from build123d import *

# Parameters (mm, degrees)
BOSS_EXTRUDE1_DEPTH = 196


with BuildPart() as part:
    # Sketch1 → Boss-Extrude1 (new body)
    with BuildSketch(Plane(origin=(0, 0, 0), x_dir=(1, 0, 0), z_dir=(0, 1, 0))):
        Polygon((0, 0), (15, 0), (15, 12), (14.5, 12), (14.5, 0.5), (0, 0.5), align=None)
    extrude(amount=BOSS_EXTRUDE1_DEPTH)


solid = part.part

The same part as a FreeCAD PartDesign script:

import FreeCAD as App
import Part
import Sketcher


def add_polygon(sketch, points):
    """Adds a closed chain of lines whose ends are joined by coincident constraints."""
    first, n = sketch.GeometryCount, len(points)
    for a, b in zip(points, points[1:] + points[:1]):
        sketch.addGeometry(Part.LineSegment(App.Vector(*a, 0), App.Vector(*b, 0)), False)
    for i in range(n):
        sketch.addConstraint(Sketcher.Constraint("Coincident", first + i, 2, first + (i + 1) % n, 1))

doc = App.newDocument("Part")
body = doc.addObject("PartDesign::Body", "Body")

sketch1 = body.newObject("Sketcher::SketchObject", "Sketch")
sketch1.AttachmentSupport = (doc.getObject("XZ_Plane"), [""])
sketch1.MapMode = "FlatFace"
add_polygon(sketch1, [(0, 0), (15, 0), (15, -12), (14.5, -12), (14.5, -0.5), (0, -0.5)])
sketch1.addConstraint(Sketcher.Constraint("Horizontal", 0))
sketch1.addConstraint(Sketcher.Constraint("Vertical", 1))
sketch1.addConstraint(Sketcher.Constraint("Horizontal", 2))
sketch1.addConstraint(Sketcher.Constraint("Vertical", 3))
sketch1.addConstraint(Sketcher.Constraint("Horizontal", 4))
sketch1.addConstraint(Sketcher.Constraint("Vertical", 5))
sketch1.addConstraint(Sketcher.Constraint("Coincident", 5, 2, -1, 1))
sketch1.addConstraint(Sketcher.Constraint("Equal", 2, 5))
sketch1.addConstraint(Sketcher.Constraint("DistanceX", 0, 1, 0, 2, 15.0))
sketch1.addConstraint(Sketcher.Constraint("DistanceY", 1, 2, 1, 1, 12.0))
sketch1.addConstraint(Sketcher.Constraint("DistanceX", 2, 2, 2, 1, 0.5))
pad1 = body.newObject("PartDesign::Pad", "Pad")
pad1.Profile = sketch1
pad1.Length = 196
pad1.Reversed = True

doc.recompute()
